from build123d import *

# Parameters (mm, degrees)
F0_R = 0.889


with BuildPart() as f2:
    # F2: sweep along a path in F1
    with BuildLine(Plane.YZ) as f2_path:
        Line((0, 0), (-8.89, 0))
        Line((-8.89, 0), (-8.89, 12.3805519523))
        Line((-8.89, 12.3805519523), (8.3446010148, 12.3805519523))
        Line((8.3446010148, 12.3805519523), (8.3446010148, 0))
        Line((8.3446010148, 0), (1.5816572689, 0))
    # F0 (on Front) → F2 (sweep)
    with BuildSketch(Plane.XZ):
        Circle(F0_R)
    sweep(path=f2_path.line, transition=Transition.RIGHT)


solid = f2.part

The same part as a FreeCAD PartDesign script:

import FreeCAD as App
import Part
import Sketcher
Q = App.Units.Quantity

doc = App.newDocument("Part")
body = doc.addObject("PartDesign::Body", "Body")

sketch1 = body.newObject("Sketcher::SketchObject", "Sketch")
sketch1.AttachmentSupport = (doc.getObject("XZ_Plane"), [""])
sketch1.MapMode = "FlatFace"
sketch1.addGeometry(Part.Circle(App.Vector(0, 0, 0), App.Vector(0, 0, 1), 0.9), False)
sketch1.addConstraint([
    Sketcher.Constraint("Coincident", 0, 3, -1, 1),
    Sketcher.Constraint("Diameter", 0, Q("0.07 in")),
])

sketch2 = body.newObject("Sketcher::SketchObject", "Sketch001")
sketch2.AttachmentSupport = (doc.getObject("YZ_Plane"), [""])
sketch2.MapMode = "FlatFace"
sketch2.addGeometry([
    Part.LineSegment(App.Vector(0, 0, 0), App.Vector(-9, 0, 0)),
    Part.LineSegment(App.Vector(-9, 0, 0), App.Vector(-9, 12, 0)),
    Part.LineSegment(App.Vector(-9, 12, 0), App.Vector(8, 12, 0)),
    Part.LineSegment(App.Vector(8, 12, 0), App.Vector(8, 0, 0)),
    Part.LineSegment(App.Vector(8, 0, 0), App.Vector(2, 0, 0)),
], False)
sketch2.addConstraint([
    Sketcher.Constraint("Coincident", 0, 2, 1, 1),
    Sketcher.Constraint("Coincident", 1, 2, 2, 1),
    Sketcher.Constraint("Coincident", 2, 2, 3, 1),
    Sketcher.Constraint("Coincident", 3, 2, 4, 1),
    Sketcher.Constraint("Horizontal", 0),
    Sketcher.Constraint("Vertical", 1),
    Sketcher.Constraint("Horizontal", 2),
    Sketcher.Constraint("Vertical", 3),
    Sketcher.Constraint("Horizontal", 4),
    Sketcher.Constraint("Coincident", 0, 1, -1, 1),
    Sketcher.Constraint("PointOnObject", 3, 2, -1),
    Sketcher.Constraint("DistanceX", 0, 2, 0, 1, Q("0.35 in")),
    Sketcher.Constraint("DistanceX", 2, 1, 2, 2, 17.234601),
    Sketcher.Constraint("DistanceY", 1, 1, 1, 2, 12.380552),
    Sketcher.Constraint("DistanceX", 4, 2, 4, 1, 6.762944),
])
doc.recompute()

additivepipe = body.newObject("PartDesign::AdditivePipe", "AdditivePipe")
additivepipe.Profile = sketch1
additivepipe.Spine = (sketch2, ["Edge1", "Edge2", "Edge3", "Edge4", "Edge5"])
additivepipe.Transition = "Right corner"

doc.recompute()
